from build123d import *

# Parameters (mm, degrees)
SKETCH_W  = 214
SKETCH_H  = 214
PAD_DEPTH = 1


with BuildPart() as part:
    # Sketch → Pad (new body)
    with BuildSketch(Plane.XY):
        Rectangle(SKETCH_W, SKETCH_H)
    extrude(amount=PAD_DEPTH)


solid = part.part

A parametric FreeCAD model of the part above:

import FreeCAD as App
import Part
import Sketcher
Q = App.Units.Quantity


def add_polygon(sketch, points):
    """Adds a closed chain of lines whose ends are joined by coincident constraints."""
    first, n = sketch.GeometryCount, len(points)
    for a, b in zip(points, points[1:] + points[:1]):
        sketch.addGeometry(Part.LineSegment(App.Vector(*a, 0), App.Vector(*b, 0)), False)
    for i in range(n):
        sketch.addConstraint(Sketcher.Constraint("Coincident", first + i, 2, first + (i + 1) % n, 1))

doc = App.newDocument("Part")
body = doc.addObject("PartDesign::Body", "Body")

# Sketch on XY plane
sketch1 = body.newObject("Sketcher::SketchObject", "Sketch")
sketch1.AttachmentSupport = (doc.getObject("XY_Plane"), [""])
sketch1.MapMode = "FlatFace"
add_polygon(sketch1, [(-107, 107), (-107, -107), (107, -107), (107, 107)])  # lines 0-3
sketch1.addConstraint([
    Sketcher.Constraint("Vertical", 0),
    Sketcher.Constraint("Horizontal", 1),
    Sketcher.Constraint("Vertical", 2),
    Sketcher.Constraint("Horizontal", 3),
    Sketcher.Constraint("Symmetric", 0, 2, 2, 2, -1, 1),
    Sketcher.Constraint("Equal", 3, 0),
    Sketcher.Constraint("DistanceX", 1, 1, 1, 2, Q("214 mm")),
])
pad1 = body.newObject("PartDesign::Pad", "Pad")
pad1.Profile = sketch1
pad1.Length = 1

doc.recompute()
